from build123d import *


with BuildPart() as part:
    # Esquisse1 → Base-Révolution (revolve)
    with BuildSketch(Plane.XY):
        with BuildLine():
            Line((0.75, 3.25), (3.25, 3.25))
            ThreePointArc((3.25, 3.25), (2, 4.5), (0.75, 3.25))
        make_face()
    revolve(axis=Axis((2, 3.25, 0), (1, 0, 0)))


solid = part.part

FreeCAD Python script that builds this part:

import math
import FreeCAD as App
import Part
import Sketcher

V = App.Vector
Q = App.Units.Quantity

doc = App.newDocument("Part")
body = doc.addObject("PartDesign::Body", "Body")

# Sketch on XY plane
sketch1 = body.newObject("Sketcher::SketchObject", "Sketch")
sketch1.AttachmentSupport = (doc.getObject("XY_Plane"), [""])
sketch1.MapMode = "FlatFace"
sketch1.addGeometry(Part.LineSegment(V(0.8, 3.2, 0), V(3.2, 3.2, 0)), False)
sketch1.addGeometry(Part.ArcOfCircle(Part.Circle(V(2, 3.2, 0), V(0, 0, 1), 1.2), math.radians(0), math.radians(180)), False)
sketch1.addGeometry(Part.LineSegment(V(0.8, 3.2, 0), V(3.2, 3.2, 0)), True)  # axis
sketch1.addConstraint(Sketcher.Constraint("Coincident", 0, 1, 1, 2))
sketch1.addConstraint(Sketcher.Constraint("Coincident", 1, 1, 0, 2))
sketch1.addConstraint(Sketcher.Constraint("Horizontal", 0))
sketch1.addConstraint(Sketcher.Constraint("Horizontal", 2))
sketch1.addConstraint(Sketcher.Constraint("Coincident", 2, 1, 0, 1))
sketch1.addConstraint(Sketcher.Constraint("Horizontal", 1, 3, 0, 1))
sketch1.addConstraint(Sketcher.Constraint("Equal", 0, 2))
sketch1.addConstraint(Sketcher.Constraint("Radius", 1, Q("1.25 mm")))
sketch1.addConstraint(Sketcher.Constraint("DistanceX", -1, 1, 1, 3, Q("2 mm")))
sketch1.addConstraint(Sketcher.Constraint("DistanceY", -1, 1, 1, 3, Q("3.25 mm")))
revolution = body.newObject("PartDesign::Revolution", "Revolution")
revolution.Profile = sketch1
revolution.ReferenceAxis = (sketch1, ["Axis0"])
revolution.Angle = 360

doc.recompute()
